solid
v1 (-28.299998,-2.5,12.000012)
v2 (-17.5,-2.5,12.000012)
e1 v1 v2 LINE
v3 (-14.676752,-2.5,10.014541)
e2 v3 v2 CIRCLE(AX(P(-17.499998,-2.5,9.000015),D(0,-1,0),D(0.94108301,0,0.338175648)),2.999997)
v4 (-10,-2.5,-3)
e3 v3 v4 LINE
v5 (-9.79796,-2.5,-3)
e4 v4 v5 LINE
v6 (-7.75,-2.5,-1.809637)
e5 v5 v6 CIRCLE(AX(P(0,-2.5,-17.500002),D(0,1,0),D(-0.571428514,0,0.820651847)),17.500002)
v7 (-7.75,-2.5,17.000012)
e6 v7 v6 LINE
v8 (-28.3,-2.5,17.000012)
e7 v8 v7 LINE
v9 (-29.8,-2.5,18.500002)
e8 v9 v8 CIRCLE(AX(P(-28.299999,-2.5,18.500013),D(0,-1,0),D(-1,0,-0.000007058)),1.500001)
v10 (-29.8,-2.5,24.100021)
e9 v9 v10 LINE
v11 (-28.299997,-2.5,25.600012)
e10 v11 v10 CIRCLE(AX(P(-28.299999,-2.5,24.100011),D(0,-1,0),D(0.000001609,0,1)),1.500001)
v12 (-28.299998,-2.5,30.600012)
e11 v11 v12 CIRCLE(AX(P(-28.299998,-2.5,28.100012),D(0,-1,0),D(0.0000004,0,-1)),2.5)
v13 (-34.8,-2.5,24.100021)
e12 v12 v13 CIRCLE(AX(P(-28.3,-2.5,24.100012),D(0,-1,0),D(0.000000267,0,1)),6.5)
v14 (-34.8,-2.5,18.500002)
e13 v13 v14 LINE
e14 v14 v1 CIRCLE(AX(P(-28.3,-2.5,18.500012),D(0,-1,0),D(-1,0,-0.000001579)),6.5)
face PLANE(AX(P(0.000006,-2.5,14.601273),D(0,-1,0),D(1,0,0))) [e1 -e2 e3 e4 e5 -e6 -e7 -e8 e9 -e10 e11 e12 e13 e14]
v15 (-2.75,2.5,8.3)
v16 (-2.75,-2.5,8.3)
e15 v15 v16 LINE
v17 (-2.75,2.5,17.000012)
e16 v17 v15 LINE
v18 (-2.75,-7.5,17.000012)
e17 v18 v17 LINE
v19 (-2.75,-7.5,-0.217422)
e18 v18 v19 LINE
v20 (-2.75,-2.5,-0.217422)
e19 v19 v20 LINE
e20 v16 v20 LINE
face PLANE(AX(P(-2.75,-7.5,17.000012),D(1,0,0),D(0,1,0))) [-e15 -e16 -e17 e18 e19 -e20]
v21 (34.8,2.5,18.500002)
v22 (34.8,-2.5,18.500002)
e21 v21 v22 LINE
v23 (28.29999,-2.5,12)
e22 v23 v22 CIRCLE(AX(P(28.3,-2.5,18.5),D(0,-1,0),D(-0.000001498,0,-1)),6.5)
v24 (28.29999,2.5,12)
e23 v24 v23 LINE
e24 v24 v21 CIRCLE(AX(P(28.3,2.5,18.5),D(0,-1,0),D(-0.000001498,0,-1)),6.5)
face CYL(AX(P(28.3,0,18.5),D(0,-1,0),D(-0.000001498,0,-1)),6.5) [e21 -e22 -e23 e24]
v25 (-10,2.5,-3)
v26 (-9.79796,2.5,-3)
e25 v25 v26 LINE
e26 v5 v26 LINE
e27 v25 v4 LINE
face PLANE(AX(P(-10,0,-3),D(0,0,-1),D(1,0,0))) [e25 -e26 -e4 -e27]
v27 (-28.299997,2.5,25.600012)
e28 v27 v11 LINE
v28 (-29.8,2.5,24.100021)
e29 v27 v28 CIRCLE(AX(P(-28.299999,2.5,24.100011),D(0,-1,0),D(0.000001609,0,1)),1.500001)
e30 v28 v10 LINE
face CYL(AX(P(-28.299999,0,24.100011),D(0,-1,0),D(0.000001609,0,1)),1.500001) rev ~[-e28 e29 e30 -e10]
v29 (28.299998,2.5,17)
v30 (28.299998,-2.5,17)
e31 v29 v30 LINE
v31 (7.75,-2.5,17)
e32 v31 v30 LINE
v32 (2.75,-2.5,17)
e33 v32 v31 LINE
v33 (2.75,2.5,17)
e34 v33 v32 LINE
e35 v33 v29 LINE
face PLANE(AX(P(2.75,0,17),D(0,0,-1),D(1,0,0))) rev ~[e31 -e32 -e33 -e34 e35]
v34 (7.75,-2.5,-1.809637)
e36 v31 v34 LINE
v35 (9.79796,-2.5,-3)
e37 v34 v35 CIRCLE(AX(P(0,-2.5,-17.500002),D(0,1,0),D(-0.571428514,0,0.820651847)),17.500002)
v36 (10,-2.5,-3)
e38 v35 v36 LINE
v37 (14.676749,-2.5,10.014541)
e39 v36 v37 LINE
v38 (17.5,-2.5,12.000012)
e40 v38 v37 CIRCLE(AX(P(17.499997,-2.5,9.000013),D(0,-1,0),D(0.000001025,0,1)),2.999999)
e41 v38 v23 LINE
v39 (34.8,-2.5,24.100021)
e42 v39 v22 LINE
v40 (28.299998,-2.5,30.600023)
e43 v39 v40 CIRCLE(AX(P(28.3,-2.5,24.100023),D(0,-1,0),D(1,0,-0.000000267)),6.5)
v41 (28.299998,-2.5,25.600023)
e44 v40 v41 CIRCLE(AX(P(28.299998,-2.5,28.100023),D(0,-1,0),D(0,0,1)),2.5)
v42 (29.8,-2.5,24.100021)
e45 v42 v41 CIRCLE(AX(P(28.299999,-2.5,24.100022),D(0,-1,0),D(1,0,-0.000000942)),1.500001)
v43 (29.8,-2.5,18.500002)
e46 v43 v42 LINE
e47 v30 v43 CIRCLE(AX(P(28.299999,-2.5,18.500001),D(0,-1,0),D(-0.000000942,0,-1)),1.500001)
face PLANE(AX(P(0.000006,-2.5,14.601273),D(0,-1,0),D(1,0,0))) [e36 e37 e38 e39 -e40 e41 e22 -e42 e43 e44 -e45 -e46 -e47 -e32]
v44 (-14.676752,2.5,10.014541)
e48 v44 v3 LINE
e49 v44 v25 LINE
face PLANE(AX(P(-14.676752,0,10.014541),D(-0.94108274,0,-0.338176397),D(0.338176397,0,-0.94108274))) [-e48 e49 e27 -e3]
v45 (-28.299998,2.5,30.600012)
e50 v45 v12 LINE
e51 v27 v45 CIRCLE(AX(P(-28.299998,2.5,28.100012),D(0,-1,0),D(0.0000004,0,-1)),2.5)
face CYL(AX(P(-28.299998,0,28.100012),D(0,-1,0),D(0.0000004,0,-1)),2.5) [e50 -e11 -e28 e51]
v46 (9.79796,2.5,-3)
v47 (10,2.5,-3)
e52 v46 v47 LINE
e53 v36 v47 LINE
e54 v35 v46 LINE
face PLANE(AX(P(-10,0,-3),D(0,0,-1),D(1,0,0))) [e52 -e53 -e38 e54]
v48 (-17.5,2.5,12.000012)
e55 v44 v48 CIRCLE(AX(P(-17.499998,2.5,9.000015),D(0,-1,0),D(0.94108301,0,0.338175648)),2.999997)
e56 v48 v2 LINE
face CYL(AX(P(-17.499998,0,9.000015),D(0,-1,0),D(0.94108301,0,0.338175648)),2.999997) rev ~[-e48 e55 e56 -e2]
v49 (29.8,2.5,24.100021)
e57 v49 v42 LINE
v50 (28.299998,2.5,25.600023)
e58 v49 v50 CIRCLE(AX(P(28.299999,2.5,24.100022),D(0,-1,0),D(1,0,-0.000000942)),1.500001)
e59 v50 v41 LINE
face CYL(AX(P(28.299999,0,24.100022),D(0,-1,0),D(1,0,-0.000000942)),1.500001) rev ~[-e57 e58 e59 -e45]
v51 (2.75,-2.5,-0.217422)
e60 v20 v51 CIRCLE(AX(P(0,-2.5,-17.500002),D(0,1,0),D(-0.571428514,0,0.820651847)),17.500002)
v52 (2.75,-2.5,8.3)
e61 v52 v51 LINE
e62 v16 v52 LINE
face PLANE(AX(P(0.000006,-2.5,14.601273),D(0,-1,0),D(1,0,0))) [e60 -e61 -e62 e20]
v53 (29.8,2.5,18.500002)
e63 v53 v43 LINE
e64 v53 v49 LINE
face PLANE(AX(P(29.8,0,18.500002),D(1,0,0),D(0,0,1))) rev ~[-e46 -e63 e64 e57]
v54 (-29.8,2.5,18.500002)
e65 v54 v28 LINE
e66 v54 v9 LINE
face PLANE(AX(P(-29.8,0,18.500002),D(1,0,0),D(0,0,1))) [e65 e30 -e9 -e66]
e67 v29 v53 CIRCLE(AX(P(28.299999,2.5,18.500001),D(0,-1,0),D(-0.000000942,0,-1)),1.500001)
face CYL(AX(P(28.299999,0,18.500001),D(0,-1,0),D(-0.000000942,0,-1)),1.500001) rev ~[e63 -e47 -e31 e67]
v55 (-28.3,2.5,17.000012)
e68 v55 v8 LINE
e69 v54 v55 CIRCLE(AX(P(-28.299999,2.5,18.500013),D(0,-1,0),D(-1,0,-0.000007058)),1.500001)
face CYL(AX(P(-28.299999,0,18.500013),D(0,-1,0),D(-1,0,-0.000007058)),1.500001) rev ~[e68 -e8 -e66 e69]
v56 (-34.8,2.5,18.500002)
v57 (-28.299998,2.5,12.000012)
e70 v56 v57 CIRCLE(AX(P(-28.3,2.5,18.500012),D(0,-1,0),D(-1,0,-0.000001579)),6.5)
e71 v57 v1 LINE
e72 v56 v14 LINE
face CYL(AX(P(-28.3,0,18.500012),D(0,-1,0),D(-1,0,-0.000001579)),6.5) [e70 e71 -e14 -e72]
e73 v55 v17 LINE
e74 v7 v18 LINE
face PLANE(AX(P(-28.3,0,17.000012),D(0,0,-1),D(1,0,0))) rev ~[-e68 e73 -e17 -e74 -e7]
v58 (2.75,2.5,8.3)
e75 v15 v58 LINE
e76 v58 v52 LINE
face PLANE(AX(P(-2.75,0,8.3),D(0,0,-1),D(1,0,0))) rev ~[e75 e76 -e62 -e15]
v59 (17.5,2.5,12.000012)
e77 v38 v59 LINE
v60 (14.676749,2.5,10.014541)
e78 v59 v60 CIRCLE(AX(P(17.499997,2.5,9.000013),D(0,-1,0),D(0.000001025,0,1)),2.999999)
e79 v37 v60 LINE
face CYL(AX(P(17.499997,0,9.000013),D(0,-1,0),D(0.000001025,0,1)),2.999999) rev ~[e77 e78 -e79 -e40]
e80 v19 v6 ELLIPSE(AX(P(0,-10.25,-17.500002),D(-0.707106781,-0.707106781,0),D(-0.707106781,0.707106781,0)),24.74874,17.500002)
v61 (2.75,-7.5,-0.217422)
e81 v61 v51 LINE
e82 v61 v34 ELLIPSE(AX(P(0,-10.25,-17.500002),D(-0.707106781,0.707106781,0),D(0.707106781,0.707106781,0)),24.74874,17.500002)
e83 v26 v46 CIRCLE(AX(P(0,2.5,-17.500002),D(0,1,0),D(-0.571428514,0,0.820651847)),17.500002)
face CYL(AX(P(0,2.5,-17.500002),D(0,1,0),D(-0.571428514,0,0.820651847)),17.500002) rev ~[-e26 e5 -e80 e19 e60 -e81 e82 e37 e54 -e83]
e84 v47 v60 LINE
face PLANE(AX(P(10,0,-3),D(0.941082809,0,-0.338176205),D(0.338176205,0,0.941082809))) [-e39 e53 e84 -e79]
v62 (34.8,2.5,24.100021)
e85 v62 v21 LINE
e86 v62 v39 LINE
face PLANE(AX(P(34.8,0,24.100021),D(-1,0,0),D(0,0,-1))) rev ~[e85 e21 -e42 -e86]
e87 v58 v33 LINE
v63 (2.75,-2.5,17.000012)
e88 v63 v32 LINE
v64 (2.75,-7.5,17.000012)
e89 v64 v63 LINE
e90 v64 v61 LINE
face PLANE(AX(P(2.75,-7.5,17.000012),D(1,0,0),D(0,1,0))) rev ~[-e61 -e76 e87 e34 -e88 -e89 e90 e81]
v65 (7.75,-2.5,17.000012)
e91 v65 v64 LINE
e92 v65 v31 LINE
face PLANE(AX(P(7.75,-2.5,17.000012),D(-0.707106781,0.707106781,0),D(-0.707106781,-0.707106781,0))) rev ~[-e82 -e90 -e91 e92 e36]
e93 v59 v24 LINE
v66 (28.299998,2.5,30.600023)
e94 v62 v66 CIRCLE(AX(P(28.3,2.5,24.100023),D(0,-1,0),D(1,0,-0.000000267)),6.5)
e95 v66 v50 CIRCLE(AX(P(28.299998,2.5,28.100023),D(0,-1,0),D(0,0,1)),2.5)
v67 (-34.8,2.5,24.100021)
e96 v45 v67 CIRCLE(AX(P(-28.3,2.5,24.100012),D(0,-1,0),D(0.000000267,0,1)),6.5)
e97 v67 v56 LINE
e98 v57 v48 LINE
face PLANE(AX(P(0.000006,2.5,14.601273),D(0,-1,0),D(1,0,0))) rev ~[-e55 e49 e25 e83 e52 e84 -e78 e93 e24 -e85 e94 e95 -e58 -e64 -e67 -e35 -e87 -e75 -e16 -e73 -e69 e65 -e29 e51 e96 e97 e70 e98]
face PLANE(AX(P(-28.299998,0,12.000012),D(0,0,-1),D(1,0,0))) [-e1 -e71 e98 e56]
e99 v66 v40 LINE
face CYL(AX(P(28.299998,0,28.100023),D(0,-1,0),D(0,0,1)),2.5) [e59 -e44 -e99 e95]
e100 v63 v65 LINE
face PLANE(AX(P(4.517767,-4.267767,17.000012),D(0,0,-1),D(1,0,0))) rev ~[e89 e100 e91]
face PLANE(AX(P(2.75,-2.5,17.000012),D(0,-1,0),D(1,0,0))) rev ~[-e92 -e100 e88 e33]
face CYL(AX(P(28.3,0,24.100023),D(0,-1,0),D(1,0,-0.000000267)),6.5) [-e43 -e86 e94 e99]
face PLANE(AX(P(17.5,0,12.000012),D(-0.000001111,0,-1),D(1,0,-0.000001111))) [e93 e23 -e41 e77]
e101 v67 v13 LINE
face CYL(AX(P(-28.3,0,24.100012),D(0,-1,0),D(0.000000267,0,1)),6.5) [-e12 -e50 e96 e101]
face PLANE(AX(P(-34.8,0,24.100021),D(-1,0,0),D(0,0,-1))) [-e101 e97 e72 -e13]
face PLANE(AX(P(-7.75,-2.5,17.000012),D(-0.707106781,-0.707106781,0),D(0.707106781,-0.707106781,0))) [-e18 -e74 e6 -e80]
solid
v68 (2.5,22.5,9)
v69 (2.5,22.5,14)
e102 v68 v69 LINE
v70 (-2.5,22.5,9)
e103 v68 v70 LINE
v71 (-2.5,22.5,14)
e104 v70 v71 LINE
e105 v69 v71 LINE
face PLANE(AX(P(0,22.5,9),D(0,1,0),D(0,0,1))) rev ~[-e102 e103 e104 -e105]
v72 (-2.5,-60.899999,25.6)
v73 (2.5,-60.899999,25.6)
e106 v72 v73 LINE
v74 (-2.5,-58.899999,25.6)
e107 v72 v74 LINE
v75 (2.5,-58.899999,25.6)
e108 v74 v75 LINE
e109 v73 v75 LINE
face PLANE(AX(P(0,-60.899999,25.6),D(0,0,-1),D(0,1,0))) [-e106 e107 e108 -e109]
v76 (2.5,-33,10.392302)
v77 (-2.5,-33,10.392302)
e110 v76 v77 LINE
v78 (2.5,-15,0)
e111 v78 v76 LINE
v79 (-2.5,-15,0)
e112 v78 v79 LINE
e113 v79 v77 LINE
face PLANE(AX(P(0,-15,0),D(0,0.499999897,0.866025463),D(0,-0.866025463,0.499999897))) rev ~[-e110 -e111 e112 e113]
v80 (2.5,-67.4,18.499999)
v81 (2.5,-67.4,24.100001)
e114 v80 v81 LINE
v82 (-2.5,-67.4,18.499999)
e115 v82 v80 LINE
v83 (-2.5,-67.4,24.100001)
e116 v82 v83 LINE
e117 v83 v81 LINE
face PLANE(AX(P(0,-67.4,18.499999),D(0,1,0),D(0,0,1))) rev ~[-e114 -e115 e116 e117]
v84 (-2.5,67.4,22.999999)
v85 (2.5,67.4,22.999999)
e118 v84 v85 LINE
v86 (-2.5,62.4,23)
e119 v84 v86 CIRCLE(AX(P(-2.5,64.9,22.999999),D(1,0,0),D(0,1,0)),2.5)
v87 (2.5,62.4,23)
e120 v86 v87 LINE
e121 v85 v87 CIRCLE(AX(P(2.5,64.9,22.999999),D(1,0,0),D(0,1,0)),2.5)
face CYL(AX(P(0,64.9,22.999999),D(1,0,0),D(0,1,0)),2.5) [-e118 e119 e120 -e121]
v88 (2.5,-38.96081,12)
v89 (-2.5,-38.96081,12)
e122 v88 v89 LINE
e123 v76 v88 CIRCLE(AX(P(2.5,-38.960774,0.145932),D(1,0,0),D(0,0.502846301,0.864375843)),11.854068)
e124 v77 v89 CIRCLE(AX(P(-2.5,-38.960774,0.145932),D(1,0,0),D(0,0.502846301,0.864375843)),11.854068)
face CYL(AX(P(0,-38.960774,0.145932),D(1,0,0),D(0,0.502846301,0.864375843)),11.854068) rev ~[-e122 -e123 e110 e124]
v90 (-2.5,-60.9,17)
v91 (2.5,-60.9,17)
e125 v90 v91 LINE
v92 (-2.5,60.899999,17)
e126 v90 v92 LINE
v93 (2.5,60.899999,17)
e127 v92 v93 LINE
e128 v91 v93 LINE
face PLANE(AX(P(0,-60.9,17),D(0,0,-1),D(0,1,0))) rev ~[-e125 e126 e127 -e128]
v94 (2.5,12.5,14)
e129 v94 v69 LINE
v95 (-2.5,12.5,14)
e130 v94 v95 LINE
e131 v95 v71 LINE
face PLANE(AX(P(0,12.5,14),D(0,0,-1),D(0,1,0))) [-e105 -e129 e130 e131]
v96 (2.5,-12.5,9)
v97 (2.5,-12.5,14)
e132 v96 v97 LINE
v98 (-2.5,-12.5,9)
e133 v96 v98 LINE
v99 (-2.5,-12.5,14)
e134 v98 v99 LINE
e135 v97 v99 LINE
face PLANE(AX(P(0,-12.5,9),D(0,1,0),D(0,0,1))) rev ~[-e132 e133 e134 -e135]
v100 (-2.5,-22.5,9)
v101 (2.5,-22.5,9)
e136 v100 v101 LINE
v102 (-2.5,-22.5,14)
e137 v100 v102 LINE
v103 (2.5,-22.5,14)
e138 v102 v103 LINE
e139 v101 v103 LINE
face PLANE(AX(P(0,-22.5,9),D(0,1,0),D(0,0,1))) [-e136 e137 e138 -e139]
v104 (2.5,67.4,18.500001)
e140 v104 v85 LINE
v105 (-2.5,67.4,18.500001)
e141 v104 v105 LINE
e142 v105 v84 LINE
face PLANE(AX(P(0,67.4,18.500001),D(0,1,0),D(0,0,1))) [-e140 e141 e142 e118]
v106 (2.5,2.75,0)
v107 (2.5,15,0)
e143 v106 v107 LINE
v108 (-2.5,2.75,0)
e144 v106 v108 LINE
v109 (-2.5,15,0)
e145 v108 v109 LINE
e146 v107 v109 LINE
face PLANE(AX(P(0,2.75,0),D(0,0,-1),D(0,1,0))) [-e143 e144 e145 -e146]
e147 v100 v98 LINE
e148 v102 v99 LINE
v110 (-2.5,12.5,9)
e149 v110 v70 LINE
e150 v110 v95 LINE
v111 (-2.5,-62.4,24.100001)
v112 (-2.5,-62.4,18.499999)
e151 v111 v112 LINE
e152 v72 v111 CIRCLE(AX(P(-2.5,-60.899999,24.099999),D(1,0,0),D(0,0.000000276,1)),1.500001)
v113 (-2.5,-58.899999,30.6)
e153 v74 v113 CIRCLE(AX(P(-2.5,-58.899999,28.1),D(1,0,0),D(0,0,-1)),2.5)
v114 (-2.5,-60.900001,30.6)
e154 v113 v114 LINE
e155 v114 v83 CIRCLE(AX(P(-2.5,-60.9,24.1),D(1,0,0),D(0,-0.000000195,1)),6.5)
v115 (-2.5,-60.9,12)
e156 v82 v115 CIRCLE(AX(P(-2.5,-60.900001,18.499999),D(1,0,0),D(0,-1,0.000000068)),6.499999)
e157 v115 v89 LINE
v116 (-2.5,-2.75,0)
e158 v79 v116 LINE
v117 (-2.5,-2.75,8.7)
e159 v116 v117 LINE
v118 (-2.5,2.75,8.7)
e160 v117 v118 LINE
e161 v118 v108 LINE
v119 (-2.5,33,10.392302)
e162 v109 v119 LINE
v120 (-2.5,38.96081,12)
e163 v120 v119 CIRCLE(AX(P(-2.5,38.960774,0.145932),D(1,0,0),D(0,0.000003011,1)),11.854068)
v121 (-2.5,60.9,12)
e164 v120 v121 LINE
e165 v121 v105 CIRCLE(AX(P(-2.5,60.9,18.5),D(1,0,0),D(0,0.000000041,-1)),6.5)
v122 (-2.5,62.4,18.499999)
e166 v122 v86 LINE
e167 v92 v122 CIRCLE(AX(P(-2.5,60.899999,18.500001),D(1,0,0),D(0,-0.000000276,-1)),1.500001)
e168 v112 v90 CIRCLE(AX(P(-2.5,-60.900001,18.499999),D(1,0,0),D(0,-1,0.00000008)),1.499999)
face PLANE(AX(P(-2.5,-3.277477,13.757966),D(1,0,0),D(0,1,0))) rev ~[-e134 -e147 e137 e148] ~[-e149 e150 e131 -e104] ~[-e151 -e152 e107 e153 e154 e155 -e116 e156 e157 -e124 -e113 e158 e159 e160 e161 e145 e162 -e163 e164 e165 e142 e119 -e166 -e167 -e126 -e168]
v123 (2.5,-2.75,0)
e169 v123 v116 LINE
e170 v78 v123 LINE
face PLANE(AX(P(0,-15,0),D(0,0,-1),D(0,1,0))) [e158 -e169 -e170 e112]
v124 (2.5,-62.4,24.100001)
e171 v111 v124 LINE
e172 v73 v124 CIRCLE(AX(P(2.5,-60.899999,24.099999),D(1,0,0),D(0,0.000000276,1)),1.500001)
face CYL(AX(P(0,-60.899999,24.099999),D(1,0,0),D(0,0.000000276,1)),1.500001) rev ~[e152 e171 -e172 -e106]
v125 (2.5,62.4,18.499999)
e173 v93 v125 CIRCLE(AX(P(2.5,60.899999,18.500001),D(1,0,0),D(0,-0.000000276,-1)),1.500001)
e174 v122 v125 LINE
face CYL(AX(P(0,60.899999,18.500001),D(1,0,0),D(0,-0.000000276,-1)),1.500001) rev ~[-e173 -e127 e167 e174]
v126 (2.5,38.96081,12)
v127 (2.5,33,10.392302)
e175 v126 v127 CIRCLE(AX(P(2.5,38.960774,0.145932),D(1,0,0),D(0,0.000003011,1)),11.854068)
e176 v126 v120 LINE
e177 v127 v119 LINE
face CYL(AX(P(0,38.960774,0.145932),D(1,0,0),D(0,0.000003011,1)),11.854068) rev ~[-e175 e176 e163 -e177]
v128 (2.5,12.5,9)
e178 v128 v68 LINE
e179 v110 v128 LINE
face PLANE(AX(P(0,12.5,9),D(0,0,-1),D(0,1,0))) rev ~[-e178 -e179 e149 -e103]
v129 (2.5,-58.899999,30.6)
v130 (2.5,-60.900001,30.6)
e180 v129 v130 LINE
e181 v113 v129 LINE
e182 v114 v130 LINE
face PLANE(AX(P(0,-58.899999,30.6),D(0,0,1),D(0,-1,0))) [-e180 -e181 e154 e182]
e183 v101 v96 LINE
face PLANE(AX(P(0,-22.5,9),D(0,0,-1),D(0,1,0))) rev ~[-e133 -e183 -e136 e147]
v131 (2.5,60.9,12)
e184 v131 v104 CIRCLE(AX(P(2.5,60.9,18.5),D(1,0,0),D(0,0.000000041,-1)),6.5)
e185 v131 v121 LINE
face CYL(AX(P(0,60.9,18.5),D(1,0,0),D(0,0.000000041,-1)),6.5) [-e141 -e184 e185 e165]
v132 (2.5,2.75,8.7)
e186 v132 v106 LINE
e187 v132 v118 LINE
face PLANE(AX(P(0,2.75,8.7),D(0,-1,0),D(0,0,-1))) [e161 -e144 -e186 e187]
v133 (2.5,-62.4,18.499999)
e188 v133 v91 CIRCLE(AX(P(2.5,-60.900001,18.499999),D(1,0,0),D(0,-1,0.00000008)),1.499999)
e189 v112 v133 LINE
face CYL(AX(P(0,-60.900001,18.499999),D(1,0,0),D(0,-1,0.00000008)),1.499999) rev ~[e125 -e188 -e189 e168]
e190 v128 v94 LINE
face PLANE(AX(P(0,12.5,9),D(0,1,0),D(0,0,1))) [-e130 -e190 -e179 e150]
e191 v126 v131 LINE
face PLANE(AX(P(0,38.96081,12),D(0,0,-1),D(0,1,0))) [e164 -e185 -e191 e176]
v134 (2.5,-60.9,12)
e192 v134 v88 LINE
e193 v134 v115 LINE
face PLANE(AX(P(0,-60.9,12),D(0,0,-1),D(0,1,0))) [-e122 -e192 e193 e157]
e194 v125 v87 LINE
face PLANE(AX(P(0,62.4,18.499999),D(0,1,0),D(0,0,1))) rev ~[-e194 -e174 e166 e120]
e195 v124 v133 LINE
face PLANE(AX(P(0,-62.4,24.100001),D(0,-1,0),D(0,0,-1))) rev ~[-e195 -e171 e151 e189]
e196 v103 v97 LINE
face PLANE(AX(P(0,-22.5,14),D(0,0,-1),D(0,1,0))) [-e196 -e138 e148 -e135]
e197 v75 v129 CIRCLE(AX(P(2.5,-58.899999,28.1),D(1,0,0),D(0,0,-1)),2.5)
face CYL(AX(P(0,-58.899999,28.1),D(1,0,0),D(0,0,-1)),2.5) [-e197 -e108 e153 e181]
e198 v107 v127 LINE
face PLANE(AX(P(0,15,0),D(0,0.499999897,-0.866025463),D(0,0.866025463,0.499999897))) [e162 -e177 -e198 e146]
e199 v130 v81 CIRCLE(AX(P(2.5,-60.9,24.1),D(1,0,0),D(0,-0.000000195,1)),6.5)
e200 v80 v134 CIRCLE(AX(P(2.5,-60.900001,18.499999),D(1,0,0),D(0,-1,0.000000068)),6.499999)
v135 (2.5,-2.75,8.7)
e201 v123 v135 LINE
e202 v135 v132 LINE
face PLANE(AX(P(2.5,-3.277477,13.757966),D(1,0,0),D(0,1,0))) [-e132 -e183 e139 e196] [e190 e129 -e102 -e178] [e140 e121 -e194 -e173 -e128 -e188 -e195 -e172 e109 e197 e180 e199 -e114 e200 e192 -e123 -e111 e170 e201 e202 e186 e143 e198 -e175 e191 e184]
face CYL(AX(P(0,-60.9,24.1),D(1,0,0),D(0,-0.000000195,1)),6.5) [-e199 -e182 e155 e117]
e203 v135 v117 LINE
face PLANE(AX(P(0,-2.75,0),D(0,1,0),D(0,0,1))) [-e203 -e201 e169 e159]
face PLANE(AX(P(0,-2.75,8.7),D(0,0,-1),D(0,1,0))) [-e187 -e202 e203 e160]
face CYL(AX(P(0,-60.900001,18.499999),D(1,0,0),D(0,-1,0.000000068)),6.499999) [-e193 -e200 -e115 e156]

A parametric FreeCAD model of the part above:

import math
import FreeCAD as App
import Part
import Sketcher
from FreeCAD import Vector
Q = App.Units.Quantity

doc = App.newDocument("Part")
body = doc.addObject("PartDesign::Body", "Body")

# Sketch on YZ plane
sketch1 = doc.addObject("Sketcher::SketchObject", "Sketch")
body.addObject(sketch1)
sketch1.AttachmentSupport = (doc.YZ_Plane, [""])
sketch1.MapMode = "FlatFace"
sketch1.addGeometry(Part.LineSegment(Vector(67.4, 18.5, 0), Vector(67.4, 23, 0)), False)
sketch1.addGeometry(Part.ArcOfCircle(Part.Circle(Vector(64.9, 23, 0), Vector(0, 0, 1), 2.5), math.radians(0), math.radians(180)), False)
sketch1.addGeometry(Part.LineSegment(Vector(62.4, 23, 0), Vector(62.4, 18.5, 0)), False)
sketch1.addGeometry(Part.ArcOfCircle(Part.Circle(Vector(60.9, 18.5, 0), Vector(0, 0, 1), 1.5), math.radians(-90), math.radians(0)), False)
sketch1.addGeometry(Part.LineSegment(Vector(60.9, 17, 0), Vector(-60.9, 17, 0)), False)
sketch1.addGeometry(Part.ArcOfCircle(Part.Circle(Vector(-60.9, 18.5, 0), Vector(0, 0, 1), 1.5), math.radians(180), math.radians(270)), False)
sketch1.addGeometry(Part.LineSegment(Vector(-62.4, 18.5, 0), Vector(-62.4, 24.1, 0)), False)
sketch1.addGeometry(Part.ArcOfCircle(Part.Circle(Vector(-60.9, 24.1, 0), Vector(0, 0, 1), 1.5), math.radians(90), math.radians(180)), False)
sketch1.addGeometry(Part.LineSegment(Vector(-60.9, 25.6, 0), Vector(-58.9, 25.6, 0)), False)
sketch1.addGeometry(Part.ArcOfCircle(Part.Circle(Vector(-58.9, 28.1, 0), Vector(0, 0, 1), 2.5), math.radians(-90), math.radians(90)), False)
sketch1.addGeometry(Part.LineSegment(Vector(-58.9, 30.6, 0), Vector(-60.9, 30.6, 0)), False)
sketch1.addGeometry(Part.ArcOfCircle(Part.Circle(Vector(-60.9, 24.1, 0), Vector(0, 0, 1), 6.5), math.radians(90), math.radians(180)), False)
sketch1.addGeometry(Part.LineSegment(Vector(-67.4, 24.1, 0), Vector(-67.4, 18.5, 0)), False)
sketch1.addGeometry(Part.ArcOfCircle(Part.Circle(Vector(-60.9, 18.5, 0), Vector(0, 0, 1), 6.5), math.radians(180), math.radians(270)), False)
sketch1.addGeometry(Part.LineSegment(Vector(-60.9, 12, 0), Vector(-39, 12, 0)), False)
sketch1.addGeometry(Part.ArcOfCircle(Part.Circle(Vector(-39, 0.1, 0), Vector(0, 0, 1), 11.9), math.radians(60), math.radians(90)), False)
sketch1.addGeometry(Part.LineSegment(Vector(-33, 10.4, 0), Vector(-15, 0, 0)), False)
sketch1.addGeometry(Part.LineSegment(Vector(-15, 0, 0), Vector(-2.8, 0, 0)), False)
sketch1.addGeometry(Part.LineSegment(Vector(-2.8, 0, 0), Vector(-2.8, 8.7, 0)), False)
sketch1.addGeometry(Part.LineSegment(Vector(-2.8, 8.7, 0), Vector(2.8, 8.7, 0)), False)
sketch1.addGeometry(Part.LineSegment(Vector(2.8, 8.7, 0), Vector(2.8, 0, 0)), False)
sketch1.addGeometry(Part.LineSegment(Vector(2.8, 0, 0), Vector(15, 0, 0)), False)
sketch1.addGeometry(Part.LineSegment(Vector(15, 0, 0), Vector(33, 10.4, 0)), False)
sketch1.addGeometry(Part.ArcOfCircle(Part.Circle(Vector(39, 0.1, 0), Vector(0, 0, 1), 11.9), math.radians(90), math.radians(120)), False)
sketch1.addGeometry(Part.LineSegment(Vector(39, 12, 0), Vector(60.9, 12, 0)), False)
sketch1.addGeometry(Part.ArcOfCircle(Part.Circle(Vector(60.9, 18.5, 0), Vector(0, 0, 1), 6.5), math.radians(-90), math.radians(0)), False)
sketch1.addGeometry(Part.LineSegment(Vector(-12.5, 9, 0), Vector(-22.5, 9, 0)), False)
sketch1.addGeometry(Part.LineSegment(Vector(-22.5, 9, 0), Vector(-22.5, 14, 0)), False)
sketch1.addGeometry(Part.LineSegment(Vector(-22.5, 14, 0), Vector(-12.5, 14, 0)), False)
sketch1.addGeometry(Part.LineSegment(Vector(-12.5, 14, 0), Vector(-12.5, 9, 0)), False)
sketch1.addGeometry(Part.LineSegment(Vector(22.5, 9, 0), Vector(12.5, 9, 0)), False)
sketch1.addGeometry(Part.LineSegment(Vector(12.5, 9, 0), Vector(12.5, 14, 0)), False)
sketch1.addGeometry(Part.LineSegment(Vector(12.5, 14, 0), Vector(22.5, 14, 0)), False)
sketch1.addGeometry(Part.LineSegment(Vector(22.5, 14, 0), Vector(22.5, 9, 0)), False)
sketch1.addConstraint(Sketcher.Constraint("Tangent", 0, 2, 1, 1))
sketch1.addConstraint(Sketcher.Constraint("Tangent", 1, 2, 2, 1))
sketch1.addConstraint(Sketcher.Constraint("Tangent", 2, 2, 3, 2))
sketch1.addConstraint(Sketcher.Constraint("Tangent", 3, 1, 4, 1))
sketch1.addConstraint(Sketcher.Constraint("Tangent", 4, 2, 5, 2))
sketch1.addConstraint(Sketcher.Constraint("Tangent", 5, 1, 6, 1))
sketch1.addConstraint(Sketcher.Constraint("Tangent", 6, 2, 7, 2))
sketch1.addConstraint(Sketcher.Constraint("Tangent", 7, 1, 8, 1))
sketch1.addConstraint(Sketcher.Constraint("Tangent", 8, 2, 9, 1))
sketch1.addConstraint(Sketcher.Constraint("Tangent", 9, 2, 10, 1))
sketch1.addConstraint(Sketcher.Constraint("Tangent", 10, 2, 11, 1))
sketch1.addConstraint(Sketcher.Constraint("Tangent", 11, 2, 12, 1))
sketch1.addConstraint(Sketcher.Constraint("Tangent", 12, 2, 13, 1))
sketch1.addConstraint(Sketcher.Constraint("Tangent", 13, 2, 14, 1))
sketch1.addConstraint(Sketcher.Constraint("Coincident", 14, 2, 15, 2))
sketch1.addConstraint(Sketcher.Constraint("Coincident", 15, 1, 16, 1))
sketch1.addConstraint(Sketcher.Constraint("Coincident", 16, 2, 17, 1))
sketch1.addConstraint(Sketcher.Constraint("Coincident", 17, 2, 18, 1))
sketch1.addConstraint(Sketcher.Constraint("Coincident", 18, 2, 19, 1))
sketch1.addConstraint(Sketcher.Constraint("Coincident", 19, 2, 20, 1))
sketch1.addConstraint(Sketcher.Constraint("Coincident", 20, 2, 21, 1))
sketch1.addConstraint(Sketcher.Constraint("Coincident", 21, 2, 22, 1))
sketch1.addConstraint(Sketcher.Constraint("Coincident", 22, 2, 23, 2))
sketch1.addConstraint(Sketcher.Constraint("Coincident", 23, 1, 24, 1))
sketch1.addConstraint(Sketcher.Constraint("Tangent", 24, 2, 25, 1))
sketch1.addConstraint(Sketcher.Constraint("Tangent", 25, 2, 0, 1))
sketch1.addConstraint(Sketcher.Constraint("Coincident", 26, 2, 27, 1))
sketch1.addConstraint(Sketcher.Constraint("Coincident", 27, 2, 28, 1))
sketch1.addConstraint(Sketcher.Constraint("Coincident", 28, 2, 29, 1))
sketch1.addConstraint(Sketcher.Constraint("Coincident", 29, 2, 26, 1))
sketch1.addConstraint(Sketcher.Constraint("Coincident", 30, 2, 31, 1))
sketch1.addConstraint(Sketcher.Constraint("Coincident", 31, 2, 32, 1))
sketch1.addConstraint(Sketcher.Constraint("Coincident", 32, 2, 33, 1))
sketch1.addConstraint(Sketcher.Constraint("Coincident", 33, 2, 30, 1))
sketch1.addConstraint(Sketcher.Constraint("Vertical", 0))
sketch1.addConstraint(Sketcher.Constraint("Vertical", 2))
sketch1.addConstraint(Sketcher.Constraint("Horizontal", 4))
sketch1.addConstraint(Sketcher.Constraint("Vertical", 6))
sketch1.addConstraint(Sketcher.Constraint("Horizontal", 8))
sketch1.addConstraint(Sketcher.Constraint("Horizontal", 10))
sketch1.addConstraint(Sketcher.Constraint("Vertical", 12))
sketch1.addConstraint(Sketcher.Constraint("Horizontal", 14))
sketch1.addConstraint(Sketcher.Constraint("Horizontal", 17))
sketch1.addConstraint(Sketcher.Constraint("Vertical", 18))
sketch1.addConstraint(Sketcher.Constraint("Horizontal", 19))
sketch1.addConstraint(Sketcher.Constraint("Vertical", 20))
sketch1.addConstraint(Sketcher.Constraint("Horizontal", 21))
sketch1.addConstraint(Sketcher.Constraint("Horizontal", 24))
sketch1.addConstraint(Sketcher.Constraint("Horizontal", 26))
sketch1.addConstraint(Sketcher.Constraint("Vertical", 27))
sketch1.addConstraint(Sketcher.Constraint("Horizontal", 28))
sketch1.addConstraint(Sketcher.Constraint("Vertical", 29))
sketch1.addConstraint(Sketcher.Constraint("Horizontal", 30))
sketch1.addConstraint(Sketcher.Constraint("Vertical", 31))
sketch1.addConstraint(Sketcher.Constraint("Horizontal", 32))
sketch1.addConstraint(Sketcher.Constraint("Vertical", 33))
sketch1.addConstraint(Sketcher.Constraint("Coincident", 11, 3, 7, 3))
sketch1.addConstraint(Sketcher.Constraint("Coincident", 13, 3, 5, 3))
sketch1.addConstraint(Sketcher.Constraint("Coincident", 25, 3, 3, 3))
sketch1.addConstraint(Sketcher.Constraint("Equal", 3, 5))
sketch1.addConstraint(Sketcher.Constraint("Equal", 5, 7))
sketch1.addConstraint(Sketcher.Constraint("Equal", 1, 9))
sketch1.addConstraint(Sketcher.Constraint("Equal", 15, 23))
sketch1.addConstraint(Sketcher.Constraint("Symmetric", 17, 2, 20, 2, -1, 1))
sketch1.addConstraint(Sketcher.Constraint("Symmetric", 16, 2, 21, 2, -2))
sketch1.addConstraint(Sketcher.Constraint("Symmetric", 15, 1, 22, 2, -2))
sketch1.addConstraint(Sketcher.Constraint("Symmetric", 29, 2, 30, 2, -2))
sketch1.addConstraint(Sketcher.Constraint("Symmetric", 27, 2, 32, 2, -2))
sketch1.addConstraint(Sketcher.Constraint("Equal", 14, 24))
sketch1.addConstraint(Sketcher.Constraint("Radius", 1, 2.5))
sketch1.addConstraint(Sketcher.Constraint("Radius", 3, 1.500001))
sketch1.addConstraint(Sketcher.Constraint("DistanceX", 8, 1, 8, 2, 2.0))
sketch1.addConstraint(Sketcher.Constraint("DistanceX", 26, 2, 26, 1, 10.0))
sketch1.addConstraint(Sketcher.Constraint("DistanceY", 27, 1, 27, 2, 5.0))
sketch1.addConstraint(Sketcher.Constraint("Angle", 16, Q("-29.999993 deg")))
sketch1.addConstraint(Sketcher.Constraint("DistanceX", 4, 2, 4, 1, 121.799999))
sketch1.addConstraint(Sketcher.Constraint("DistanceX", 19, 1, 19, 2, 5.5))
sketch1.addConstraint(Sketcher.Constraint("DistanceY", 2, 2, 2, 1, 4.500001))
sketch1.addConstraint(Sketcher.Constraint("DistanceY", 18, 1, 18, 2, 8.7))
sketch1.addConstraint(Sketcher.Constraint("DistanceY", -1, 1, 1, 3, 22.999999))
sketch1.addConstraint(Sketcher.Constraint("DistanceX", 15, 1, -1, 1, 33.0))
sketch1.addConstraint(Sketcher.Constraint("DistanceX", 16, 2, -1, 1, 15.0))
sketch1.addConstraint(Sketcher.Constraint("DistanceY", -1, 1, 26, 2, 9.0))
sketch1.addConstraint(Sketcher.Constraint("DistanceX", -1, 1, 1, 3, 64.9))
sketch1.addConstraint(Sketcher.Constraint("DistanceY", -1, 1, 7, 3, 24.099999))
sketch1.addConstraint(Sketcher.Constraint("DistanceX", 26, 2, -1, 1, 22.5))
sketch1.addConstraint(Sketcher.Constraint("Radius", 15, 11.854068))
sketch1.addConstraint(Sketcher.Constraint("DistanceX", 14, 1, 14, 2, 21.93919))
pad1 = doc.addObject("PartDesign::Pad", "Pad")
body.addObject(pad1)
pad1.Profile = sketch1
pad1.Length = 5
pad1.Midplane = True
body2 = doc.addObject("PartDesign::Body", "Body001")
body2.AllowCompound = True

# Sketch on XZ plane
sketch2 = doc.addObject("Sketcher::SketchObject", "Sketch001")
body2.addObject(sketch2)
sketch2.AttachmentSupport = (doc.getObject("XZ_Plane001"), [""])
sketch2.MapMode = "FlatFace"
sketch2.addGeometry(Part.LineSegment(Vector(17.5, 12.000012, 0), Vector(28.29999, 12, 0)), False)
sketch2.addGeometry(Part.ArcOfCircle(Part.Circle(Vector(28.3, 18.5, 0), Vector(0, 0, 1), 6.5), math.radians(-90.000086), math.radians(0.000015)), False)
sketch2.addGeometry(Part.LineSegment(Vector(34.8, 18.500002, 0), Vector(34.8, 24.100021, 0)), False)
sketch2.addGeometry(Part.ArcOfCircle(Part.Circle(Vector(28.3, 24.100023, 0), Vector(0, 0, 1), 6.5), math.radians(-0.000015), math.radians(90.000015)), False)
sketch2.addGeometry(Part.ArcOfCircle(Part.Circle(Vector(28.299998, 28.100023, 0), Vector(0, 0, 1), 2.5), math.radians(90), math.radians(270)), False)
sketch2.addGeometry(Part.ArcOfCircle(Part.Circle(Vector(28.299999, 24.100022, 0), Vector(0, 0, 1), 1.500001), math.radians(-0.000054), math.radians(90.000054)), False)
sketch2.addGeometry(Part.LineSegment(Vector(29.8, 24.100021, 0), Vector(29.8, 18.500002, 0)), False)
sketch2.addGeometry(Part.ArcOfCircle(Part.Circle(Vector(28.299999, 18.500001, 0), Vector(0, 0, 1), 1.500001), math.radians(-90.000054), math.radians(0.000054)), False)
sketch2.addGeometry(Part.LineSegment(Vector(28.299998, 17, 0), Vector(2.75, 17, 0)), False)
sketch2.addGeometry(Part.LineSegment(Vector(2.75, 17, 0), Vector(2.75, 8.3, 0)), False)
sketch2.addGeometry(Part.LineSegment(Vector(2.75, 8.3, 0), Vector(-2.75, 8.3, 0)), False)
sketch2.addGeometry(Part.LineSegment(Vector(-2.75, 8.3, 0), Vector(-2.75, 17.000012, 0)), False)
sketch2.addGeometry(Part.LineSegment(Vector(-2.75, 17.000012, 0), Vector(-28.3, 17.000012, 0)), False)
sketch2.addGeometry(Part.ArcOfCircle(Part.Circle(Vector(-28.299999, 18.500013, 0), Vector(0, 0, 1), 1.500001), math.radians(-179.999596), math.radians(-90.000022)), False)
sketch2.addGeometry(Part.LineSegment(Vector(-29.8, 18.500002, 0), Vector(-29.8, 24.100021, 0)), False)
sketch2.addGeometry(Part.ArcOfCircle(Part.Circle(Vector(-28.299999, 24.100011, 0), Vector(0, 0, 1), 1.500001), math.radians(89.999908), math.radians(179.999634)), False)
sketch2.addGeometry(Part.ArcOfCircle(Part.Circle(Vector(-28.299998, 28.100012, 0), Vector(0, 0, 1), 2.5), math.radians(-89.999977), math.radians(90)), False)
sketch2.addGeometry(Part.ArcOfCircle(Part.Circle(Vector(-28.3, 24.100012, 0), Vector(0, 0, 1), 6.5), math.radians(89.999985), math.radians(179.999918)), False)
sketch2.addGeometry(Part.LineSegment(Vector(-34.8, 24.100021, 0), Vector(-34.8, 18.500002, 0)), False)
sketch2.addGeometry(Part.ArcOfCircle(Part.Circle(Vector(-28.3, 18.500012, 0), Vector(0, 0, 1), 6.5), math.radians(-179.99991), math.radians(-89.999985)), False)
sketch2.addGeometry(Part.LineSegment(Vector(-28.299998, 12.000012, 0), Vector(-17.5, 12.000012, 0)), False)
sketch2.addGeometry(Part.ArcOfCircle(Part.Circle(Vector(-17.499998, 9.000015, 0), Vector(0, 0, 1), 2.999997), math.radians(19.765764), math.radians(90.000036)), False)
sketch2.addGeometry(Part.LineSegment(Vector(-14.676752, 10.014541, 0), Vector(-10, -3, 0)), False)
sketch2.addGeometry(Part.LineSegment(Vector(-10, -3, 0), Vector(10, -3, 0)), False)
sketch2.addGeometry(Part.LineSegment(Vector(10, -3, 0), Vector(14.676749, 10.014541, 0)), False)
sketch2.addGeometry(Part.ArcOfCircle(Part.Circle(Vector(17.499997, 9.000013, 0), Vector(0, 0, 1), 2.999999), math.radians(89.999941), math.radians(160.234202)), False)
sketch2.addConstraint(Sketcher.Constraint("Coincident", 0, 2, 1, 1))
sketch2.addConstraint(Sketcher.Constraint("Coincident", 1, 2, 2, 1))
sketch2.addConstraint(Sketcher.Constraint("Coincident", 2, 2, 3, 1))
sketch2.addConstraint(Sketcher.Constraint("Coincident", 3, 2, 4, 1))
sketch2.addConstraint(Sketcher.Constraint("Coincident", 4, 2, 5, 2))
sketch2.addConstraint(Sketcher.Constraint("Coincident", 5, 1, 6, 1))
sketch2.addConstraint(Sketcher.Constraint("Coincident", 6, 2, 7, 2))
sketch2.addConstraint(Sketcher.Constraint("Coincident", 7, 1, 8, 1))
sketch2.addConstraint(Sketcher.Constraint("Coincident", 8, 2, 9, 1))
sketch2.addConstraint(Sketcher.Constraint("Coincident", 9, 2, 10, 1))
sketch2.addConstraint(Sketcher.Constraint("Coincident", 10, 2, 11, 1))
sketch2.addConstraint(Sketcher.Constraint("Coincident", 11, 2, 12, 1))
sketch2.addConstraint(Sketcher.Constraint("Coincident", 12, 2, 13, 2))
sketch2.addConstraint(Sketcher.Constraint("Coincident", 13, 1, 14, 1))
sketch2.addConstraint(Sketcher.Constraint("Coincident", 14, 2, 15, 2))
sketch2.addConstraint(Sketcher.Constraint("Coincident", 15, 1, 16, 1))
sketch2.addConstraint(Sketcher.Constraint("Coincident", 16, 2, 17, 1))
sketch2.addConstraint(Sketcher.Constraint("Coincident", 17, 2, 18, 1))
sketch2.addConstraint(Sketcher.Constraint("Coincident", 18, 2, 19, 1))
sketch2.addConstraint(Sketcher.Constraint("Coincident", 19, 2, 20, 1))
sketch2.addConstraint(Sketcher.Constraint("Coincident", 20, 2, 21, 2))
sketch2.addConstraint(Sketcher.Constraint("Coincident", 21, 1, 22, 1))
sketch2.addConstraint(Sketcher.Constraint("Coincident", 22, 2, 23, 1))
sketch2.addConstraint(Sketcher.Constraint("Coincident", 23, 2, 24, 1))
sketch2.addConstraint(Sketcher.Constraint("Coincident", 24, 2, 25, 2))
sketch2.addConstraint(Sketcher.Constraint("Coincident", 25, 1, 0, 1))
sketch2.addConstraint(Sketcher.Constraint("Vertical", 2))
sketch2.addConstraint(Sketcher.Constraint("Vertical", 6))
sketch2.addConstraint(Sketcher.Constraint("Horizontal", 8))
sketch2.addConstraint(Sketcher.Constraint("Vertical", 9))
sketch2.addConstraint(Sketcher.Constraint("Horizontal", 10))
sketch2.addConstraint(Sketcher.Constraint("Vertical", 11))
sketch2.addConstraint(Sketcher.Constraint("Horizontal", 12))
sketch2.addConstraint(Sketcher.Constraint("Vertical", 14))
sketch2.addConstraint(Sketcher.Constraint("Vertical", 18))
sketch2.addConstraint(Sketcher.Constraint("Horizontal", 20))
sketch2.addConstraint(Sketcher.Constraint("Horizontal", 23))
sketch2.addConstraint(Sketcher.Constraint("Coincident", 5, 3, 3, 3))
sketch2.addConstraint(Sketcher.Constraint("Coincident", 7, 3, 1, 3))
sketch2.addConstraint(Sketcher.Constraint("Coincident", 17, 3, 15, 3))
sketch2.addConstraint(Sketcher.Constraint("Coincident", 19, 3, 13, 3))
sketch2.addConstraint(Sketcher.Constraint("Radius", 25, 2.999999))
sketch2.addConstraint(Sketcher.Constraint("Radius", 1, 6.5))
sketch2.addConstraint(Sketcher.Constraint("Radius", 3, 6.5))
sketch2.addConstraint(Sketcher.Constraint("Radius", 4, 2.5))
sketch2.addConstraint(Sketcher.Constraint("Radius", 13, 1.500001))
sketch2.addConstraint(Sketcher.Constraint("Radius", 15, 1.500001))
sketch2.addConstraint(Sketcher.Constraint("Radius", 16, 2.5))
sketch2.addConstraint(Sketcher.Constraint("DistanceX", 23, 1, 23, 2, 20.0))
sketch2.addConstraint(Sketcher.Constraint("DistanceX", 10, 2, 10, 1, 5.5))
sketch2.addConstraint(Sketcher.Constraint("DistanceY", 9, 2, 9, 1, 8.7))
sketch2.addConstraint(Sketcher.Constraint("DistanceY", -1, 1, 0, 2, 12.0))
sketch2.addConstraint(Sketcher.Constraint("DistanceX", 22, 2, -1, 1, 10.0))
sketch2.addConstraint(Sketcher.Constraint("DistanceY", 22, 2, -1, 1, 3.0))
sketch2.addConstraint(Sketcher.Constraint("DistanceY", 2, 2, 4, 3, 4.000002))
sketch2.addConstraint(Sketcher.Constraint("DistanceY", 5, 1, 4, 3, 4.000002))
sketch2.addConstraint(Sketcher.Constraint("DistanceY", 25, 3, 11, 2, 7.999999))
sketch2.addConstraint(Sketcher.Constraint("DistanceX", 12, 2, 12, 1, 25.55))
sketch2.addConstraint(Sketcher.Constraint("DistanceX", -1, 1, 1, 3, 28.3))
sketch2.addConstraint(Sketcher.Constraint("DistanceX", 13, 3, -1, 1, 28.299999))
sketch2.addConstraint(Sketcher.Constraint("DistanceX", 21, 3, -1, 1, 17.499998))
sketch2.addConstraint(Sketcher.Constraint("DistanceY", -1, 1, 1, 2, 18.500002))
sketch2.addConstraint(Sketcher.Constraint("DistanceY", -1, 1, 6, 2, 18.500002))
sketch2.addConstraint(Sketcher.Constraint("DistanceX", 12, 2, -1, 1, 28.3))
sketch2.addConstraint(Sketcher.Constraint("DistanceY", -1, 1, 13, 1, 18.500002))
sketch2.addConstraint(Sketcher.Constraint("DistanceY", -1, 1, 18, 2, 18.500002))
sketch2.addConstraint(Sketcher.Constraint("DistanceX", 20, 2, -1, 1, 17.5))
sketch2.addConstraint(Sketcher.Constraint("DistanceX", -1, 1, 25, 1, 17.5))
sketch2.addConstraint(Sketcher.Constraint("DistanceY", 13, 3, 15, 3, 5.599999))
sketch2.addConstraint(Sketcher.Constraint("DistanceX", 16, 3, 21, 3, 10.8))
sketch2.addConstraint(Sketcher.Constraint("DistanceX", 25, 3, 4, 3, 10.800001))
sketch2.addConstraint(Sketcher.Constraint("DistanceX", 4, 3, 2, 2, 6.500002))
sketch2.addConstraint(Sketcher.Constraint("DistanceX", 3, 2, 2, 2, 6.500002))
sketch2.addConstraint(Sketcher.Constraint("DistanceX", 4, 2, 2, 2, 6.500002))
sketch2.addConstraint(Sketcher.Constraint("DistanceX", 7, 1, 1, 2, 6.500002))
sketch2.addConstraint(Sketcher.Constraint("DistanceX", 13, 1, 19, 2, 1.500002))
sketch2.addConstraint(Sketcher.Constraint("Radius", 21, 2.999997))
sketch2.addConstraint(Sketcher.Constraint("DistanceY", 2, 1, 2, 2, 5.600019))
sketch2.addConstraint(Sketcher.Constraint("DistanceY", 14, 1, 14, 2, 5.600019))
sketch2.addConstraint(Sketcher.Constraint("DistanceY", 18, 2, 18, 1, 5.600019))
sketch2.addConstraint(Sketcher.Constraint("Distance", 0, 10.79999))
sketch2.addConstraint(Sketcher.Constraint("DistanceY", 11, 1, 11, 2, 8.700012))
sketch2.addConstraint(Sketcher.Constraint("DistanceY", -1, 1, 21, 1, 10.014541))
sketch2.addConstraint(Sketcher.Constraint("DistanceX", -1, 1, 24, 2, 14.676749))
sketch2.addConstraint(Sketcher.Constraint("DistanceX", 15, 1, -1, 1, 28.299997))
sketch2.addConstraint(Sketcher.Constraint("DistanceX", 16, 2, -1, 1, 28.299998))
pad2 = doc.addObject("PartDesign::Pad", "Pad001")
body2.addObject(pad2)
pad2.Profile = sketch2
pad2.Length = 5
pad2.Midplane = True

# Sketch on XY plane
sketch3 = doc.addObject("Sketcher::SketchObject", "Sketch002")
body2.addObject(sketch3)
sketch3.AttachmentSupport = (doc.getObject("XY_Plane001"), [""])
sketch3.MapMode = "FlatFace"
sketch3.AttachmentOffset = App.Placement(Vector(0, 0, 17.000012), App.Rotation())
sketch3.addGeometry(Part.LineSegment(Vector(3, -8, 0), Vector(8, -2, 0)), False)
sketch3.addGeometry(Part.LineSegment(Vector(8, -2, 0), Vector(3, -2, 0)), False)
sketch3.addGeometry(Part.LineSegment(Vector(3, -2, 0), Vector(3, -8, 0)), False)
sketch3.addGeometry(Part.LineSegment(Vector(-3, -8, 0), Vector(-3, -2, 0)), False)
sketch3.addGeometry(Part.LineSegment(Vector(-3, -2, 0), Vector(-8, -2, 0)), False)
sketch3.addGeometry(Part.LineSegment(Vector(-8, -2, 0), Vector(-3, -8, 0)), False)
sketch3.addConstraint(Sketcher.Constraint("Coincident", 0, 2, 1, 1))
sketch3.addConstraint(Sketcher.Constraint("Coincident", 1, 2, 2, 1))
sketch3.addConstraint(Sketcher.Constraint("Coincident", 2, 2, 0, 1))
sketch3.addConstraint(Sketcher.Constraint("Coincident", 3, 2, 4, 1))
sketch3.addConstraint(Sketcher.Constraint("Coincident", 4, 2, 5, 1))
sketch3.addConstraint(Sketcher.Constraint("Coincident", 5, 2, 3, 1))
sketch3.addConstraint(Sketcher.Constraint("Horizontal", 1))
sketch3.addConstraint(Sketcher.Constraint("Vertical", 2))
sketch3.addConstraint(Sketcher.Constraint("Vertical", 3))
sketch3.addConstraint(Sketcher.Constraint("Horizontal", 4))
sketch3.addConstraint(Sketcher.Constraint("Symmetric", 1, 2, 3, 2, -2))
sketch3.addConstraint(Sketcher.Constraint("Perpendicular", 0, 5))
sketch3.addConstraint(Sketcher.Constraint("Horizontal", 2, 2, 5, 2))
sketch3.addConstraint(Sketcher.Constraint("Equal", 1, 4))
sketch3.addConstraint(Sketcher.Constraint("DistanceX", 1, 2, 1, 1, 5.0))
sketch3.addConstraint(Sketcher.Constraint("DistanceY", 0, 2, -1, 1, 2.5))
sketch3.addConstraint(Sketcher.Constraint("DistanceX", 3, 2, 1, 2, 5.5))
pad3 = doc.addObject("PartDesign::Pad", "Pad002")
body2.addObject(pad3)
pad3.Profile = sketch3
pad3.Length = 20
pad3.Reversed = True

# Sketch on XZ plane
sketch4 = doc.addObject("Sketcher::SketchObject", "Sketch003")
body2.addObject(sketch4)
sketch4.AttachmentSupport = (doc.getObject("XZ_Plane001"), [""])
sketch4.MapMode = "FlatFace"
sketch4.AttachmentOffset = App.Placement(Vector(0, 0, -2.5), App.Rotation())
sketch4.addGeometry(Part.ArcOfCircle(Part.Circle(Vector(0, -18, 0), Vector(0, 0, 1), 18), math.radians(55), math.radians(125)), False)
sketch4.addGeometry(Part.LineSegment(Vector(10, -3, 0), Vector(-10, -3, 0)), False)
sketch4.addConstraint(Sketcher.Constraint("Coincident", 0, 1, 1, 1))
sketch4.addConstraint(Sketcher.Constraint("Coincident", 1, 2, 0, 2))
sketch4.addConstraint(Sketcher.Constraint("Horizontal", 1))
sketch4.addConstraint(Sketcher.Constraint("PointOnObject", 0, 3, -2))
sketch4.addConstraint(Sketcher.Constraint("Radius", 0, 17.500002))
sketch4.addConstraint(Sketcher.Constraint("DistanceX", 1, 2, 1, 1, 20.0))
sketch4.addConstraint(Sketcher.Constraint("DistanceY", 0, 3, -1, 1, 17.500002))
pocket1 = doc.addObject("PartDesign::Pocket", "Pocket")
body2.addObject(pocket1)
pocket1.Profile = sketch4
pocket1.Length = 10
pocket1.Reversed = True
doc.recompute()

boolean = doc.addObject("PartDesign::Boolean", "Boolean")
body2.addObject(boolean)
boolean.Type = "Fuse"
boolean.addObjects([body])

doc.recompute()
